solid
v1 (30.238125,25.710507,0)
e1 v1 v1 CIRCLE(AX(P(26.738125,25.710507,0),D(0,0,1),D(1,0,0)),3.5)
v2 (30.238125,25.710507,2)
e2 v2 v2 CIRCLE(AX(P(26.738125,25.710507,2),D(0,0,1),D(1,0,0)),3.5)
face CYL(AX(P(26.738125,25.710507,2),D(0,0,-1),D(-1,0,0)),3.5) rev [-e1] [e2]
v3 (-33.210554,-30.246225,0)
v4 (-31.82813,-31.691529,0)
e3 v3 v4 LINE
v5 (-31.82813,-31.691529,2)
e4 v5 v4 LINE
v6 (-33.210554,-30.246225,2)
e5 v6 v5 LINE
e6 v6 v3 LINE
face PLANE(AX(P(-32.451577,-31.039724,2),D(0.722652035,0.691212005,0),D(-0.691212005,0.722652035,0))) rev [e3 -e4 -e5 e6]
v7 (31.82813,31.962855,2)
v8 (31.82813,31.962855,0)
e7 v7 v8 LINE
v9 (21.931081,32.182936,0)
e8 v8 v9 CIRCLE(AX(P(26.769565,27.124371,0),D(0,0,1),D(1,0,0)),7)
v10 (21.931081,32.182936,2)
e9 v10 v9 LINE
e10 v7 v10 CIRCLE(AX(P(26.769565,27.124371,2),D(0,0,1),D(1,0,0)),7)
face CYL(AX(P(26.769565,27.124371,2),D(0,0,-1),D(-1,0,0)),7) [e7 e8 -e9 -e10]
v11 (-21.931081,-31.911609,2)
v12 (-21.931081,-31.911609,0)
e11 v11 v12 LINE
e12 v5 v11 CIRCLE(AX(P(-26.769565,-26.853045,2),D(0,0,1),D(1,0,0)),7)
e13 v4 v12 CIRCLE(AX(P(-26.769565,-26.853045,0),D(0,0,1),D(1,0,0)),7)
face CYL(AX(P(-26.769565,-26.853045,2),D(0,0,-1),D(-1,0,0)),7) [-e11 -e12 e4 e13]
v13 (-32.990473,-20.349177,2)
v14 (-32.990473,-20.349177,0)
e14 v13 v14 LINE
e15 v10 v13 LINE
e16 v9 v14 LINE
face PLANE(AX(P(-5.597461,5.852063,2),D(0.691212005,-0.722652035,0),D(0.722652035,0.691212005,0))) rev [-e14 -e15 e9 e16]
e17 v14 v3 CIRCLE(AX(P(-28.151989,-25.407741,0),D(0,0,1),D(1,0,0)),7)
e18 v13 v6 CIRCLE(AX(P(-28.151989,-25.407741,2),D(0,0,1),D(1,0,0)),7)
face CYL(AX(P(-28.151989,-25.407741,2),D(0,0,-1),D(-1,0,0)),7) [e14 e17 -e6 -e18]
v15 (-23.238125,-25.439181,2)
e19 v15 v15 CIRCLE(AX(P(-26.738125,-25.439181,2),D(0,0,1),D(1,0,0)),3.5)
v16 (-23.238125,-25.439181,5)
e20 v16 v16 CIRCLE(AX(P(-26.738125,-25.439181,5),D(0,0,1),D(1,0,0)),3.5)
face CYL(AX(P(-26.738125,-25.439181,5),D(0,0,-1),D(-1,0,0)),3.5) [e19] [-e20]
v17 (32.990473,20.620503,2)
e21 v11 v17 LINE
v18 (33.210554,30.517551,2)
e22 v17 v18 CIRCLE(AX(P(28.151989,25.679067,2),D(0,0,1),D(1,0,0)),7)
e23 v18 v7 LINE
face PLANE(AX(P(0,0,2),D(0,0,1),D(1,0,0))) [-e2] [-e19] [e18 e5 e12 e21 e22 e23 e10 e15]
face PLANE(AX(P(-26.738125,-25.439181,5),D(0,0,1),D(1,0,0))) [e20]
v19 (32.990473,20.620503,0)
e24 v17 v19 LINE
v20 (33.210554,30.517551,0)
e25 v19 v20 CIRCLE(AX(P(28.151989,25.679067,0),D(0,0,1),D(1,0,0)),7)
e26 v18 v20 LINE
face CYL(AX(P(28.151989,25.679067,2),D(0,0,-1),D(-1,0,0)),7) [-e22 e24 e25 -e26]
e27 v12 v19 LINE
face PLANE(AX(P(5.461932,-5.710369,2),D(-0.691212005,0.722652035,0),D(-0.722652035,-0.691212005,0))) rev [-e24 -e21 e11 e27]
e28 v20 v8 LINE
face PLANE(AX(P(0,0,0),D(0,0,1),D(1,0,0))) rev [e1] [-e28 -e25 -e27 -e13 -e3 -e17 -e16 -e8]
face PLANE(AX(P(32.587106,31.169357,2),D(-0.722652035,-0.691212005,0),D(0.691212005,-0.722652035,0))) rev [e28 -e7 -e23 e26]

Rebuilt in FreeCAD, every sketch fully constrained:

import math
import FreeCAD as App
import Part
import Sketcher
from FreeCAD import Vector

doc = App.newDocument("Part")
body = doc.addObject("PartDesign::Body", "Body")

# Sketch on XY plane
sketch1 = body.newObject("Sketcher::SketchObject", "Sketch")
sketch1.AttachmentSupport = (doc.getObject("XY_Plane"), [""])
sketch1.MapMode = "FlatFace"
sketch1.addGeometry(Part.ArcOfCircle(Part.Circle(Vector(26.8, 27.1, 0), Vector(0, 0, 1), 7), math.radians(44), math.radians(134)), False)
sketch1.addGeometry(Part.LineSegment(Vector(21.9, 32.2, 0), Vector(-33, -20.3, 0)), False)
sketch1.addGeometry(Part.ArcOfCircle(Part.Circle(Vector(-28.2, -25.4, 0), Vector(0, 0, 1), 7), math.radians(134), math.radians(224)), False)
sketch1.addGeometry(Part.LineSegment(Vector(-33.2, -30.2, 0), Vector(-31.8, -31.7, 0)), False)
sketch1.addGeometry(Part.ArcOfCircle(Part.Circle(Vector(-26.8, -26.9, 0), Vector(0, 0, 1), 7), math.radians(-136), math.radians(-46)), False)
sketch1.addGeometry(Part.LineSegment(Vector(-21.9, -31.9, 0), Vector(33, 20.6, 0)), False)
sketch1.addGeometry(Part.ArcOfCircle(Part.Circle(Vector(28.2, 25.7, 0), Vector(0, 0, 1), 7), math.radians(-46), math.radians(44)), False)
sketch1.addGeometry(Part.LineSegment(Vector(33.2, 30.5, 0), Vector(31.8, 32, 0)), False)
sketch1.addGeometry(Part.Circle(Vector(26.7, 25.7, 0), Vector(0, 0, 1), 3.5), False)
sketch1.addConstraint(Sketcher.Constraint("Tangent", 0, 2, 1, 1))
sketch1.addConstraint(Sketcher.Constraint("Tangent", 1, 2, 2, 1))
sketch1.addConstraint(Sketcher.Constraint("Tangent", 2, 2, 3, 1))
sketch1.addConstraint(Sketcher.Constraint("Tangent", 3, 2, 4, 1))
sketch1.addConstraint(Sketcher.Constraint("Tangent", 4, 2, 5, 1))
sketch1.addConstraint(Sketcher.Constraint("Tangent", 5, 2, 6, 1))
sketch1.addConstraint(Sketcher.Constraint("Tangent", 6, 2, 7, 1))
sketch1.addConstraint(Sketcher.Constraint("Tangent", 7, 2, 0, 1))
sketch1.addConstraint(Sketcher.Constraint("Equal", 0, 2))
sketch1.addConstraint(Sketcher.Constraint("Equal", 2, 4))
sketch1.addConstraint(Sketcher.Constraint("Equal", 4, 6))
sketch1.addConstraint(Sketcher.Constraint("Perpendicular", 1, 3))
sketch1.addConstraint(Sketcher.Constraint("Perpendicular", 3, 5))
sketch1.addConstraint(Sketcher.Constraint("Perpendicular", 5, 7))
sketch1.addConstraint(Sketcher.Constraint("Diameter", 8, 7.0))
sketch1.addConstraint(Sketcher.Constraint("Radius", 0, 7.0))
sketch1.addConstraint(Sketcher.Constraint("Distance", 1, 76.0))
sketch1.addConstraint(Sketcher.Constraint("Distance", 3, 2.0))
sketch1.addConstraint(Sketcher.Constraint("DistanceX", 1, 2, 8, 3, 59.728599))
sketch1.addConstraint(Sketcher.Constraint("DistanceY", -1, 1, 0, 3, 27.124371))
sketch1.addConstraint(Sketcher.Constraint("DistanceX", 2, 3, -1, 1, 28.151989))
sketch1.addConstraint(Sketcher.Constraint("DistanceY", 2, 3, -1, 1, 25.407741))
sketch1.addConstraint(Sketcher.Constraint("DistanceY", 6, 3, 8, 3, 0.03144))
pad1 = body.newObject("PartDesign::Pad", "Pad")
pad1.Profile = sketch1
pad1.Length = 2

# Sketch on XY plane
sketch2 = body.newObject("Sketcher::SketchObject", "Sketch001")
sketch2.AttachmentSupport = (doc.getObject("XY_Plane"), [""])
sketch2.MapMode = "FlatFace"
sketch2.AttachmentOffset = App.Placement(Vector(0, 0, 2), App.Rotation())
sketch2.addGeometry(Part.Circle(Vector(-26.7, -25.4, 0), Vector(0, 0, 1), 3.5), False)
sketch2.addConstraint(Sketcher.Constraint("Diameter", 0, 7.0))
sketch2.addConstraint(Sketcher.Constraint("DistanceY", 0, 3, -1, 1, 25.439181))
sketch2.addConstraint(Sketcher.Constraint("DistanceX", 0, 3, -1, 1, 26.738125))
pad2 = body.newObject("PartDesign::Pad", "Pad001")
pad2.Profile = sketch2
pad2.Length = 3

doc.recompute()
